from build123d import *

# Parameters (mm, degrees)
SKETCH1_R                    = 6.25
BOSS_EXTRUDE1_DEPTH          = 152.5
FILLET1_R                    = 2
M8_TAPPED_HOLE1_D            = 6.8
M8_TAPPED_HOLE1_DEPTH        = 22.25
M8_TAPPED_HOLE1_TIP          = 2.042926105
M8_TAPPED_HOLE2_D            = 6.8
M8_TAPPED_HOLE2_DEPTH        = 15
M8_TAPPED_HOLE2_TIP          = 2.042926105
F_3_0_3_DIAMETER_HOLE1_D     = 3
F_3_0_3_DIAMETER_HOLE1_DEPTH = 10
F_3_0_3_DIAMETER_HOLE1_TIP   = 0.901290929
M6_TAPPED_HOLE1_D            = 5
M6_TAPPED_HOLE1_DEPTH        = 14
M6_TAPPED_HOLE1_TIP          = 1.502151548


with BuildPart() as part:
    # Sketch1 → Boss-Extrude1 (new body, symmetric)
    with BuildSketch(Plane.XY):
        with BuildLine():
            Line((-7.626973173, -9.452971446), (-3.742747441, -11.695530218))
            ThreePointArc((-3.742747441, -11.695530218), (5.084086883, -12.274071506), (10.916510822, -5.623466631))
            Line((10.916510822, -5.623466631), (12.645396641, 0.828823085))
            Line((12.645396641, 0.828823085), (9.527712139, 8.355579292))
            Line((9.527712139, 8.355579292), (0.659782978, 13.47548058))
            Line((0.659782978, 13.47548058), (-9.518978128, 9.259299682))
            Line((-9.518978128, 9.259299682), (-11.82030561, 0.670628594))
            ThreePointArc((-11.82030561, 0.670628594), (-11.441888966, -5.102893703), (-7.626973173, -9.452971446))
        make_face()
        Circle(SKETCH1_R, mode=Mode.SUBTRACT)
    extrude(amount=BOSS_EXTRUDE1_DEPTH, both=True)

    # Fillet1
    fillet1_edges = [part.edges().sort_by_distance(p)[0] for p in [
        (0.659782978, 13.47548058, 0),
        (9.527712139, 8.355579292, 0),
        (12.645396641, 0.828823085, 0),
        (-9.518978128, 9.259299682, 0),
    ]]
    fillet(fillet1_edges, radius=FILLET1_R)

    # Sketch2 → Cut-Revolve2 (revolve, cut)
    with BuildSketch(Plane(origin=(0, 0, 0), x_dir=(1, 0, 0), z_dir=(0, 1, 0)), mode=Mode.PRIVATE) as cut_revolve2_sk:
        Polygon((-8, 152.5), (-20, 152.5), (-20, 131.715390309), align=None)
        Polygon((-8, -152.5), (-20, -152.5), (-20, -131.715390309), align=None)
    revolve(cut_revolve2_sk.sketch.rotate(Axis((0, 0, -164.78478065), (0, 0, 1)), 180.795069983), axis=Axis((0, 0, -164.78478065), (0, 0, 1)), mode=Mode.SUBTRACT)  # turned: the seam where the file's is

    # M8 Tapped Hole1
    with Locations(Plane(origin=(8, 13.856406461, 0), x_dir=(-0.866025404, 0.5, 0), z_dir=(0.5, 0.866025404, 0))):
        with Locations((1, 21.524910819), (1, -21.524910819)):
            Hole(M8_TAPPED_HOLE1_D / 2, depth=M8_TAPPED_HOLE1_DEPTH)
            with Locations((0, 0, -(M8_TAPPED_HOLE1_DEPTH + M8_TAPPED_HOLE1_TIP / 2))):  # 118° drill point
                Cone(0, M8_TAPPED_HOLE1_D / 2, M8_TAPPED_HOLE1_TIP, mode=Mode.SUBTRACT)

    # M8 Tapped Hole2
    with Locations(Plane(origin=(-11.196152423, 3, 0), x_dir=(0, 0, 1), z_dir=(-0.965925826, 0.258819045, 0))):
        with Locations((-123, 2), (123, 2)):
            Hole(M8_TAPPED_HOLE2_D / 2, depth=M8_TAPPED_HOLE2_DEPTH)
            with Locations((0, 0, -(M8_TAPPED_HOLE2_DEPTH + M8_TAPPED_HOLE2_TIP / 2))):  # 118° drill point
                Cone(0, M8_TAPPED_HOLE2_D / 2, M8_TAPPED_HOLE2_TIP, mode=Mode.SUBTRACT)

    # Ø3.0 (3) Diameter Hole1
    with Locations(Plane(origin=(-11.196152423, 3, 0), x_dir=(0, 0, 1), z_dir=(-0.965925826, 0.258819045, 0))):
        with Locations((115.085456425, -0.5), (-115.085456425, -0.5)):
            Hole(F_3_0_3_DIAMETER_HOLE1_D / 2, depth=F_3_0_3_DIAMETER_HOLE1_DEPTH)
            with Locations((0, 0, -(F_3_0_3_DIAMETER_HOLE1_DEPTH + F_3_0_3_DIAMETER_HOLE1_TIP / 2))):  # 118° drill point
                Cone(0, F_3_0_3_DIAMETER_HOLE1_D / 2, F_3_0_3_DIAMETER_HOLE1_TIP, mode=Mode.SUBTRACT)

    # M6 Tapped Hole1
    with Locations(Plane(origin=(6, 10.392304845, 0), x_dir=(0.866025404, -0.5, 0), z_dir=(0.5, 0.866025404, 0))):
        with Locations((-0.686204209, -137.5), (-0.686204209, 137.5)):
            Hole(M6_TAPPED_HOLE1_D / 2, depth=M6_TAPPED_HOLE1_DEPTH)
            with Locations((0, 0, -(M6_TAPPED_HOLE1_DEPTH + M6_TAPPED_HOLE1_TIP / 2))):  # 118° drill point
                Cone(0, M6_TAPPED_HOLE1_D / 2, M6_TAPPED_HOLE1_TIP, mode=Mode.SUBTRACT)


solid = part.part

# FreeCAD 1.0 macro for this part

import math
import FreeCAD as App
import Part
import Sketcher
from FreeCAD import Vector
Q = App.Units.Quantity


def edges_at(feature, points):
    """Names of the edges that pass closest to the given points."""
    edges = feature.Shape.Edges
    near = lambda p: min(range(len(edges)), key=lambda i: edges[i].distToShape(Part.Vertex(*p))[0])
    return sorted({f"Edge{near(p) + 1}" for p in points})


def add_polygon(sketch, points):
    """Adds a closed chain of lines whose ends are joined by coincident constraints."""
    first, n = sketch.GeometryCount, len(points)
    for a, b in zip(points, points[1:] + points[:1]):
        sketch.addGeometry(Part.LineSegment(App.Vector(*a, 0), App.Vector(*b, 0)), False)
    for i in range(n):
        sketch.addConstraint(Sketcher.Constraint("Coincident", first + i, 2, first + (i + 1) % n, 1))

doc = App.newDocument("Part")
body = doc.addObject("PartDesign::Body", "Body")

sketch1 = body.newObject("Sketcher::SketchObject", "Sketch")
sketch1.AttachmentSupport = (doc.getObject("XY_Plane"), [""])
sketch1.MapMode = "FlatFace"
sketch1.addGeometry([
    Part.LineSegment(Vector(-7.6, -9.5, 0), Vector(-3.7, -11.7, 0)),
    Part.ArcOfCircle(Part.Circle(Vector(1.3, -3, 0), Vector(0, 0, 1), 10), math.radians(-120), math.radians(-15)),
    Part.LineSegment(Vector(10.9, -5.6, 0), Vector(12.6, 0.8, 0)),
    Part.LineSegment(Vector(12.6, 0.8, 0), Vector(9.5, 8.4, 0)),
    Part.LineSegment(Vector(9.5, 8.4, 0), Vector(0.7, 13.5, 0)),
    Part.LineSegment(Vector(0.7, 13.5, 0), Vector(-9.5, 9.3, 0)),
    Part.LineSegment(Vector(-9.5, 9.3, 0), Vector(-11.8, 0.7, 0)),
    Part.ArcOfCircle(Part.Circle(Vector(-3.1, -1.7, 0), Vector(0, 0, 1), 9), math.radians(165), math.radians(240)),
    Part.Circle(Vector(0, 0, 0), Vector(0, 0, 1), 6.2),
], False)
sketch1.addConstraint([
    Sketcher.Constraint("Tangent", 0, 2, 1, 1),
    Sketcher.Constraint("Tangent", 1, 2, 2, 1),
    Sketcher.Constraint("Coincident", 2, 2, 3, 1),
    Sketcher.Constraint("Coincident", 3, 2, 4, 1),
    Sketcher.Constraint("Coincident", 4, 2, 5, 1),
    Sketcher.Constraint("Coincident", 5, 2, 6, 1),
    Sketcher.Constraint("Tangent", 6, 2, 7, 1),
    Sketcher.Constraint("Tangent", 7, 2, 0, 1),
    Sketcher.Constraint("Coincident", 8, 3, -1, 1),
    Sketcher.Constraint("Parallel", 0, 4),
    Sketcher.Constraint("Perpendicular", 3, 5),
    Sketcher.Constraint("Parallel", 2, 6),
    Sketcher.Constraint("Radius", 1, 10.0),
    Sketcher.Constraint("Radius", 7, 9.0),
    Sketcher.Constraint("Diameter", 8, 12.5),
    Sketcher.Constraint("Angle", 0, Q("-30 deg")),
    Sketcher.Constraint("Angle", 2, Q("75 deg")),
    Sketcher.Constraint("Angle", 3, Q("112.5 deg")),
    Sketcher.Constraint("Distance", 2, 6.679902),
    Sketcher.Constraint("DistanceY", -1, 1, 5, 2, 9.2593),
    Sketcher.Constraint("DistanceX", 3, 2, 1, 2, 1.388799),
    Sketcher.Constraint("DistanceY", 3, 2, 4, 2, 5.119901),
    Sketcher.Constraint("Distance", 5, 11.017412),
    Sketcher.Constraint("DistanceX", -1, 1, 1, 2, 10.916511),
])
pad1 = body.newObject("PartDesign::Pad", "Pad")
pad1.Profile = sketch1
pad1.Length = 305
pad1.Midplane = True
doc.recompute()

fillet = body.newObject("PartDesign::Fillet", "Fillet")
fillet.Base = (pad1, edges_at(pad1, [
    (0.66, 13.475, 0),
    (9.528, 8.356, 0),
    (12.645, 0.829, 0),
    (-9.519, 9.259, 0),
]))
fillet.Radius = 2

sketch2 = body.newObject("Sketcher::SketchObject", "Sketch001")
sketch2.AttachmentSupport = (doc.getObject("XZ_Plane"), [""])
sketch2.MapMode = "FlatFace"
add_polygon(sketch2, [(-8, -152), (-20, -152), (-20, -132)])
add_polygon(sketch2, [(-20, 152), (-8, 152), (-20, 132)])
sketch2.addConstraint([
    Sketcher.Constraint("Horizontal", 0),
    Sketcher.Constraint("Vertical", 1),
    Sketcher.Constraint("Horizontal", 3),
    Sketcher.Constraint("Vertical", 5),
    Sketcher.Constraint("Symmetric", 2, 2, 3, 2, -1),
    Sketcher.Constraint("Symmetric", 1, 2, 4, 2, -1),
    Sketcher.Constraint("DistanceX", 0, 2, 0, 1, 12.0),
    Sketcher.Constraint("Angle", 2, Q("-60 deg")),
    Sketcher.Constraint("DistanceX", 0, 2, -1, 1, 20.0),
    Sketcher.Constraint("DistanceY", 2, 2, 3, 2, 305.0),
])
groove = body.newObject("PartDesign::Groove", "Groove")
groove.Profile = sketch2
groove.ReferenceAxis = (sketch2, ["V_Axis"])
groove.Angle = 360

sketch3 = body.newObject("Sketcher::SketchObject", "Sketch002")
sketch3.Placement = App.Placement(Vector(8, 13.856406, 0), App.Rotation(Vector(-0.866025404, 0.5, 0), Vector(0, 0, 1), Vector(0.5, 0.866025404, 0), "ZXY"))
sketch3.addGeometry([
    Part.Circle(Vector(1, 21.5, 0), Vector(0, 0, 1), 3.4),
    Part.Circle(Vector(1, -21.5, 0), Vector(0, 0, 1), 3.4),
], False)
sketch3.addConstraint([
    Sketcher.Constraint("Equal", 0, 1),
    Sketcher.Constraint("Symmetric", 0, 3, 1, 3, -1),
    Sketcher.Constraint("Diameter", 0, 6.8),
    Sketcher.Constraint("DistanceX", -1, 1, 0, 3, 1.0),
    Sketcher.Constraint("DistanceY", -1, 1, 0, 3, 21.524911),
])
doc.recompute()
hole = body.newObject("PartDesign::Hole", "Hole")
hole.Profile = sketch3
hole.ThreadType = "None"
hole.Diameter = 6.8
hole.DepthType = "Dimension"
hole.Depth = 22.25
hole.DrillPoint = "Angled"
hole.DrillPointAngle = 118

sketch4 = body.newObject("Sketcher::SketchObject", "Sketch003")
sketch4.Placement = App.Placement(Vector(-11.196152, 3, 0), App.Rotation(Vector(0, 0, 1), Vector(0.258819045, 0.965925826, 0), Vector(-0.965925826, 0.258819045, 0), "ZXY"))
sketch4.addGeometry([
    Part.Circle(Vector(-123, 2, 0), Vector(0, 0, 1), 3.4),
    Part.Circle(Vector(123, 2, 0), Vector(0, 0, 1), 3.4),
], False)
sketch4.addConstraint([
    Sketcher.Constraint("Equal", 0, 1),
    Sketcher.Constraint("Symmetric", 0, 3, 1, 3, -2),
    Sketcher.Constraint("Diameter", 0, 6.8),
    Sketcher.Constraint("DistanceX", 0, 3, -1, 1, 123.0),
    Sketcher.Constraint("DistanceY", -1, 1, 0, 3, 2.0),
])
doc.recompute()
hole2 = body.newObject("PartDesign::Hole", "Hole001")
hole2.Profile = sketch4
hole2.ThreadType = "None"
hole2.Diameter = 6.8
hole2.DepthType = "Dimension"
hole2.Depth = 15
hole2.DrillPoint = "Angled"
hole2.DrillPointAngle = 118

sketch5 = body.newObject("Sketcher::SketchObject", "Sketch004")
sketch5.Placement = App.Placement(Vector(-11.196152, 3, 0), App.Rotation(Vector(0, 0, 1), Vector(0.258819045, 0.965925826, 0), Vector(-0.965925826, 0.258819045, 0), "ZXY"))
sketch5.addGeometry([
    Part.Circle(Vector(115.1, -0.5, 0), Vector(0, 0, 1), 1.5),
    Part.Circle(Vector(-115.1, -0.5, 0), Vector(0, 0, 1), 1.5),
], False)
sketch5.addConstraint([
    Sketcher.Constraint("Equal", 0, 1),
    Sketcher.Constraint("Symmetric", 0, 3, 1, 3, -2),
    Sketcher.Constraint("Diameter", 0, 3.0),
    Sketcher.Constraint("DistanceY", 0, 3, -1, 1, 0.5),
    Sketcher.Constraint("DistanceX", -1, 1, 0, 3, 115.085456),
])
doc.recompute()
hole3 = body.newObject("PartDesign::Hole", "Hole002")
hole3.Profile = sketch5
hole3.ThreadType = "None"
hole3.Diameter = 3
hole3.DepthType = "Dimension"
hole3.Depth = 10
hole3.DrillPoint = "Angled"
hole3.DrillPointAngle = 118

sketch6 = body.newObject("Sketcher::SketchObject", "Sketch005")
sketch6.Placement = App.Placement(Vector(6, 10.392305, 0), App.Rotation(Vector(0.866025404, -0.5, 0), Vector(0, 0, -1), Vector(0.5, 0.866025404, 0), "ZXY"))
sketch6.addGeometry([
    Part.Circle(Vector(-0.7, -137.5, 0), Vector(0, 0, 1), 2.5),
    Part.Circle(Vector(-0.7, 137.5, 0), Vector(0, 0, 1), 2.5),
], False)
sketch6.addConstraint([
    Sketcher.Constraint("Equal", 0, 1),
    Sketcher.Constraint("Symmetric", 0, 3, 1, 3, -1),
    Sketcher.Constraint("Diameter", 0, 5.0),
    Sketcher.Constraint("DistanceY", 0, 3, 1, 3, 275.0),
    Sketcher.Constraint("DistanceX", 0, 3, -1, 1, 0.686204),
])
doc.recompute()
hole4 = body.newObject("PartDesign::Hole", "Hole003")
hole4.Profile = sketch6
hole4.ThreadType = "None"
hole4.Diameter = 5
hole4.DepthType = "Dimension"
hole4.Depth = 14
hole4.DrillPoint = "Angled"
hole4.DrillPointAngle = 118

doc.recompute()
